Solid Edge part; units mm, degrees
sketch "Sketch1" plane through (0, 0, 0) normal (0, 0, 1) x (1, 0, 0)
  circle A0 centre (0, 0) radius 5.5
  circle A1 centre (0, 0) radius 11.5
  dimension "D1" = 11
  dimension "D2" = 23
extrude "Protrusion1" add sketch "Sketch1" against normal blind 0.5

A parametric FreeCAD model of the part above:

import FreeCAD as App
import Part
import Sketcher

V = App.Vector
Q = App.Units.Quantity

doc = App.newDocument("Part")
params = doc.addObject("Spreadsheet::Sheet", "Params")
for row, (alias, value) in enumerate([
    ("sketch1_diameter", "23 mm"),
    ("sketch1_diameter2", "11 mm"),
    ("pad1_length", "0.5 mm"),
], start=1):
    params.set(f"A{row}", alias)
    params.set(f"B{row}", "=" + value)
    params.setAlias(f"B{row}", alias)

body = doc.addObject("PartDesign::Body", "Body")

sketch1 = doc.addObject("Sketcher::SketchObject", "Sketch")
body.addObject(sketch1)
sketch1.AttachmentSupport = (doc.XY_Plane, [""])
sketch1.MapMode = "FlatFace"
sketch1.addGeometry([
    Part.Circle(V(0, 0, 0), V(0, 0, 1), 11.5),
    Part.Circle(V(0, 0, 0), V(0, 0, 1), 5.5),
], False)
sketch1.addConstraint([
    Sketcher.Constraint("Coincident", 0, 3, -1, 1),
    Sketcher.Constraint("Coincident", 1, 3, -1, 1),
    Sketcher.Constraint("Diameter", 0, Q("23 mm")),
    Sketcher.Constraint("Diameter", 1, Q("11 mm")),
])
sketch1.setExpression("Constraints[2]", "Params.sketch1_diameter")
sketch1.setExpression("Constraints[3]", "Params.sketch1_diameter2")
pad1 = doc.addObject("PartDesign::Pad", "Pad")
body.addObject(pad1)
pad1.Profile = sketch1
pad1.setExpression("Length", "Params.pad1_length")
pad1.Reversed = True

doc.recompute()
